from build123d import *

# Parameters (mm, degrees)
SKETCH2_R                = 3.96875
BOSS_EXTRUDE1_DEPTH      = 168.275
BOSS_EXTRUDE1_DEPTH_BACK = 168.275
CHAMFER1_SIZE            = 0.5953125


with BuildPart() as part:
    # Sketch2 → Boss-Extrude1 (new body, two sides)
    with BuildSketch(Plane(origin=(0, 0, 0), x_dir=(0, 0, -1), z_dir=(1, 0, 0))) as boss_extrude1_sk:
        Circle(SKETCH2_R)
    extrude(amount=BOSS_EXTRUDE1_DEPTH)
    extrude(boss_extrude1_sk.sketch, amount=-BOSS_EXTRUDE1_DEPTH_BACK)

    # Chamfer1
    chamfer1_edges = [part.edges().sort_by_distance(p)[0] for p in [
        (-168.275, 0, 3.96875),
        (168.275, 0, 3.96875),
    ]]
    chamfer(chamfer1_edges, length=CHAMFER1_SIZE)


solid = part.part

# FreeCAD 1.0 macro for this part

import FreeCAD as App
import Part
import Sketcher

V = App.Vector
Q = App.Units.Quantity


def edges_at(feature, points):
    """Names of the edges that pass closest to the given points."""
    edges = feature.Shape.Edges
    near = lambda p: min(range(len(edges)), key=lambda i: edges[i].distToShape(Part.Vertex(*p))[0])
    return sorted({f"Edge{near(p) + 1}" for p in points})

doc = App.newDocument("Part")
body = doc.addObject("PartDesign::Body", "Body")

# Sketch on YZ plane
sketch1 = body.newObject("Sketcher::SketchObject", "Sketch")
sketch1.AttachmentSupport = (doc.getObject("YZ_Plane"), [""])
sketch1.MapMode = "FlatFace"
sketch1.addGeometry(Part.Circle(V(0, 0, 0), V(0, 0, 1), 4), False)
sketch1.addConstraint([
    Sketcher.Constraint("Coincident", 0, 3, -1, 1),
    Sketcher.Constraint("Diameter", 0, Q("0.3125 in")),
])
pad1 = body.newObject("PartDesign::Pad", "Pad")
pad1.Profile = sketch1
pad1.Type = "TwoLengths"
pad1.Length = Q("6.625 in")
pad1.Length2 = Q("6.625 in")
doc.recompute()

chamfer = body.newObject("PartDesign::Chamfer", "Chamfer")
chamfer.Base = (pad1, edges_at(pad1, [(-168.275, 0, 3.969), (168.275, 0, 3.969)]))
chamfer.Size = 0.595313

doc.recompute()
